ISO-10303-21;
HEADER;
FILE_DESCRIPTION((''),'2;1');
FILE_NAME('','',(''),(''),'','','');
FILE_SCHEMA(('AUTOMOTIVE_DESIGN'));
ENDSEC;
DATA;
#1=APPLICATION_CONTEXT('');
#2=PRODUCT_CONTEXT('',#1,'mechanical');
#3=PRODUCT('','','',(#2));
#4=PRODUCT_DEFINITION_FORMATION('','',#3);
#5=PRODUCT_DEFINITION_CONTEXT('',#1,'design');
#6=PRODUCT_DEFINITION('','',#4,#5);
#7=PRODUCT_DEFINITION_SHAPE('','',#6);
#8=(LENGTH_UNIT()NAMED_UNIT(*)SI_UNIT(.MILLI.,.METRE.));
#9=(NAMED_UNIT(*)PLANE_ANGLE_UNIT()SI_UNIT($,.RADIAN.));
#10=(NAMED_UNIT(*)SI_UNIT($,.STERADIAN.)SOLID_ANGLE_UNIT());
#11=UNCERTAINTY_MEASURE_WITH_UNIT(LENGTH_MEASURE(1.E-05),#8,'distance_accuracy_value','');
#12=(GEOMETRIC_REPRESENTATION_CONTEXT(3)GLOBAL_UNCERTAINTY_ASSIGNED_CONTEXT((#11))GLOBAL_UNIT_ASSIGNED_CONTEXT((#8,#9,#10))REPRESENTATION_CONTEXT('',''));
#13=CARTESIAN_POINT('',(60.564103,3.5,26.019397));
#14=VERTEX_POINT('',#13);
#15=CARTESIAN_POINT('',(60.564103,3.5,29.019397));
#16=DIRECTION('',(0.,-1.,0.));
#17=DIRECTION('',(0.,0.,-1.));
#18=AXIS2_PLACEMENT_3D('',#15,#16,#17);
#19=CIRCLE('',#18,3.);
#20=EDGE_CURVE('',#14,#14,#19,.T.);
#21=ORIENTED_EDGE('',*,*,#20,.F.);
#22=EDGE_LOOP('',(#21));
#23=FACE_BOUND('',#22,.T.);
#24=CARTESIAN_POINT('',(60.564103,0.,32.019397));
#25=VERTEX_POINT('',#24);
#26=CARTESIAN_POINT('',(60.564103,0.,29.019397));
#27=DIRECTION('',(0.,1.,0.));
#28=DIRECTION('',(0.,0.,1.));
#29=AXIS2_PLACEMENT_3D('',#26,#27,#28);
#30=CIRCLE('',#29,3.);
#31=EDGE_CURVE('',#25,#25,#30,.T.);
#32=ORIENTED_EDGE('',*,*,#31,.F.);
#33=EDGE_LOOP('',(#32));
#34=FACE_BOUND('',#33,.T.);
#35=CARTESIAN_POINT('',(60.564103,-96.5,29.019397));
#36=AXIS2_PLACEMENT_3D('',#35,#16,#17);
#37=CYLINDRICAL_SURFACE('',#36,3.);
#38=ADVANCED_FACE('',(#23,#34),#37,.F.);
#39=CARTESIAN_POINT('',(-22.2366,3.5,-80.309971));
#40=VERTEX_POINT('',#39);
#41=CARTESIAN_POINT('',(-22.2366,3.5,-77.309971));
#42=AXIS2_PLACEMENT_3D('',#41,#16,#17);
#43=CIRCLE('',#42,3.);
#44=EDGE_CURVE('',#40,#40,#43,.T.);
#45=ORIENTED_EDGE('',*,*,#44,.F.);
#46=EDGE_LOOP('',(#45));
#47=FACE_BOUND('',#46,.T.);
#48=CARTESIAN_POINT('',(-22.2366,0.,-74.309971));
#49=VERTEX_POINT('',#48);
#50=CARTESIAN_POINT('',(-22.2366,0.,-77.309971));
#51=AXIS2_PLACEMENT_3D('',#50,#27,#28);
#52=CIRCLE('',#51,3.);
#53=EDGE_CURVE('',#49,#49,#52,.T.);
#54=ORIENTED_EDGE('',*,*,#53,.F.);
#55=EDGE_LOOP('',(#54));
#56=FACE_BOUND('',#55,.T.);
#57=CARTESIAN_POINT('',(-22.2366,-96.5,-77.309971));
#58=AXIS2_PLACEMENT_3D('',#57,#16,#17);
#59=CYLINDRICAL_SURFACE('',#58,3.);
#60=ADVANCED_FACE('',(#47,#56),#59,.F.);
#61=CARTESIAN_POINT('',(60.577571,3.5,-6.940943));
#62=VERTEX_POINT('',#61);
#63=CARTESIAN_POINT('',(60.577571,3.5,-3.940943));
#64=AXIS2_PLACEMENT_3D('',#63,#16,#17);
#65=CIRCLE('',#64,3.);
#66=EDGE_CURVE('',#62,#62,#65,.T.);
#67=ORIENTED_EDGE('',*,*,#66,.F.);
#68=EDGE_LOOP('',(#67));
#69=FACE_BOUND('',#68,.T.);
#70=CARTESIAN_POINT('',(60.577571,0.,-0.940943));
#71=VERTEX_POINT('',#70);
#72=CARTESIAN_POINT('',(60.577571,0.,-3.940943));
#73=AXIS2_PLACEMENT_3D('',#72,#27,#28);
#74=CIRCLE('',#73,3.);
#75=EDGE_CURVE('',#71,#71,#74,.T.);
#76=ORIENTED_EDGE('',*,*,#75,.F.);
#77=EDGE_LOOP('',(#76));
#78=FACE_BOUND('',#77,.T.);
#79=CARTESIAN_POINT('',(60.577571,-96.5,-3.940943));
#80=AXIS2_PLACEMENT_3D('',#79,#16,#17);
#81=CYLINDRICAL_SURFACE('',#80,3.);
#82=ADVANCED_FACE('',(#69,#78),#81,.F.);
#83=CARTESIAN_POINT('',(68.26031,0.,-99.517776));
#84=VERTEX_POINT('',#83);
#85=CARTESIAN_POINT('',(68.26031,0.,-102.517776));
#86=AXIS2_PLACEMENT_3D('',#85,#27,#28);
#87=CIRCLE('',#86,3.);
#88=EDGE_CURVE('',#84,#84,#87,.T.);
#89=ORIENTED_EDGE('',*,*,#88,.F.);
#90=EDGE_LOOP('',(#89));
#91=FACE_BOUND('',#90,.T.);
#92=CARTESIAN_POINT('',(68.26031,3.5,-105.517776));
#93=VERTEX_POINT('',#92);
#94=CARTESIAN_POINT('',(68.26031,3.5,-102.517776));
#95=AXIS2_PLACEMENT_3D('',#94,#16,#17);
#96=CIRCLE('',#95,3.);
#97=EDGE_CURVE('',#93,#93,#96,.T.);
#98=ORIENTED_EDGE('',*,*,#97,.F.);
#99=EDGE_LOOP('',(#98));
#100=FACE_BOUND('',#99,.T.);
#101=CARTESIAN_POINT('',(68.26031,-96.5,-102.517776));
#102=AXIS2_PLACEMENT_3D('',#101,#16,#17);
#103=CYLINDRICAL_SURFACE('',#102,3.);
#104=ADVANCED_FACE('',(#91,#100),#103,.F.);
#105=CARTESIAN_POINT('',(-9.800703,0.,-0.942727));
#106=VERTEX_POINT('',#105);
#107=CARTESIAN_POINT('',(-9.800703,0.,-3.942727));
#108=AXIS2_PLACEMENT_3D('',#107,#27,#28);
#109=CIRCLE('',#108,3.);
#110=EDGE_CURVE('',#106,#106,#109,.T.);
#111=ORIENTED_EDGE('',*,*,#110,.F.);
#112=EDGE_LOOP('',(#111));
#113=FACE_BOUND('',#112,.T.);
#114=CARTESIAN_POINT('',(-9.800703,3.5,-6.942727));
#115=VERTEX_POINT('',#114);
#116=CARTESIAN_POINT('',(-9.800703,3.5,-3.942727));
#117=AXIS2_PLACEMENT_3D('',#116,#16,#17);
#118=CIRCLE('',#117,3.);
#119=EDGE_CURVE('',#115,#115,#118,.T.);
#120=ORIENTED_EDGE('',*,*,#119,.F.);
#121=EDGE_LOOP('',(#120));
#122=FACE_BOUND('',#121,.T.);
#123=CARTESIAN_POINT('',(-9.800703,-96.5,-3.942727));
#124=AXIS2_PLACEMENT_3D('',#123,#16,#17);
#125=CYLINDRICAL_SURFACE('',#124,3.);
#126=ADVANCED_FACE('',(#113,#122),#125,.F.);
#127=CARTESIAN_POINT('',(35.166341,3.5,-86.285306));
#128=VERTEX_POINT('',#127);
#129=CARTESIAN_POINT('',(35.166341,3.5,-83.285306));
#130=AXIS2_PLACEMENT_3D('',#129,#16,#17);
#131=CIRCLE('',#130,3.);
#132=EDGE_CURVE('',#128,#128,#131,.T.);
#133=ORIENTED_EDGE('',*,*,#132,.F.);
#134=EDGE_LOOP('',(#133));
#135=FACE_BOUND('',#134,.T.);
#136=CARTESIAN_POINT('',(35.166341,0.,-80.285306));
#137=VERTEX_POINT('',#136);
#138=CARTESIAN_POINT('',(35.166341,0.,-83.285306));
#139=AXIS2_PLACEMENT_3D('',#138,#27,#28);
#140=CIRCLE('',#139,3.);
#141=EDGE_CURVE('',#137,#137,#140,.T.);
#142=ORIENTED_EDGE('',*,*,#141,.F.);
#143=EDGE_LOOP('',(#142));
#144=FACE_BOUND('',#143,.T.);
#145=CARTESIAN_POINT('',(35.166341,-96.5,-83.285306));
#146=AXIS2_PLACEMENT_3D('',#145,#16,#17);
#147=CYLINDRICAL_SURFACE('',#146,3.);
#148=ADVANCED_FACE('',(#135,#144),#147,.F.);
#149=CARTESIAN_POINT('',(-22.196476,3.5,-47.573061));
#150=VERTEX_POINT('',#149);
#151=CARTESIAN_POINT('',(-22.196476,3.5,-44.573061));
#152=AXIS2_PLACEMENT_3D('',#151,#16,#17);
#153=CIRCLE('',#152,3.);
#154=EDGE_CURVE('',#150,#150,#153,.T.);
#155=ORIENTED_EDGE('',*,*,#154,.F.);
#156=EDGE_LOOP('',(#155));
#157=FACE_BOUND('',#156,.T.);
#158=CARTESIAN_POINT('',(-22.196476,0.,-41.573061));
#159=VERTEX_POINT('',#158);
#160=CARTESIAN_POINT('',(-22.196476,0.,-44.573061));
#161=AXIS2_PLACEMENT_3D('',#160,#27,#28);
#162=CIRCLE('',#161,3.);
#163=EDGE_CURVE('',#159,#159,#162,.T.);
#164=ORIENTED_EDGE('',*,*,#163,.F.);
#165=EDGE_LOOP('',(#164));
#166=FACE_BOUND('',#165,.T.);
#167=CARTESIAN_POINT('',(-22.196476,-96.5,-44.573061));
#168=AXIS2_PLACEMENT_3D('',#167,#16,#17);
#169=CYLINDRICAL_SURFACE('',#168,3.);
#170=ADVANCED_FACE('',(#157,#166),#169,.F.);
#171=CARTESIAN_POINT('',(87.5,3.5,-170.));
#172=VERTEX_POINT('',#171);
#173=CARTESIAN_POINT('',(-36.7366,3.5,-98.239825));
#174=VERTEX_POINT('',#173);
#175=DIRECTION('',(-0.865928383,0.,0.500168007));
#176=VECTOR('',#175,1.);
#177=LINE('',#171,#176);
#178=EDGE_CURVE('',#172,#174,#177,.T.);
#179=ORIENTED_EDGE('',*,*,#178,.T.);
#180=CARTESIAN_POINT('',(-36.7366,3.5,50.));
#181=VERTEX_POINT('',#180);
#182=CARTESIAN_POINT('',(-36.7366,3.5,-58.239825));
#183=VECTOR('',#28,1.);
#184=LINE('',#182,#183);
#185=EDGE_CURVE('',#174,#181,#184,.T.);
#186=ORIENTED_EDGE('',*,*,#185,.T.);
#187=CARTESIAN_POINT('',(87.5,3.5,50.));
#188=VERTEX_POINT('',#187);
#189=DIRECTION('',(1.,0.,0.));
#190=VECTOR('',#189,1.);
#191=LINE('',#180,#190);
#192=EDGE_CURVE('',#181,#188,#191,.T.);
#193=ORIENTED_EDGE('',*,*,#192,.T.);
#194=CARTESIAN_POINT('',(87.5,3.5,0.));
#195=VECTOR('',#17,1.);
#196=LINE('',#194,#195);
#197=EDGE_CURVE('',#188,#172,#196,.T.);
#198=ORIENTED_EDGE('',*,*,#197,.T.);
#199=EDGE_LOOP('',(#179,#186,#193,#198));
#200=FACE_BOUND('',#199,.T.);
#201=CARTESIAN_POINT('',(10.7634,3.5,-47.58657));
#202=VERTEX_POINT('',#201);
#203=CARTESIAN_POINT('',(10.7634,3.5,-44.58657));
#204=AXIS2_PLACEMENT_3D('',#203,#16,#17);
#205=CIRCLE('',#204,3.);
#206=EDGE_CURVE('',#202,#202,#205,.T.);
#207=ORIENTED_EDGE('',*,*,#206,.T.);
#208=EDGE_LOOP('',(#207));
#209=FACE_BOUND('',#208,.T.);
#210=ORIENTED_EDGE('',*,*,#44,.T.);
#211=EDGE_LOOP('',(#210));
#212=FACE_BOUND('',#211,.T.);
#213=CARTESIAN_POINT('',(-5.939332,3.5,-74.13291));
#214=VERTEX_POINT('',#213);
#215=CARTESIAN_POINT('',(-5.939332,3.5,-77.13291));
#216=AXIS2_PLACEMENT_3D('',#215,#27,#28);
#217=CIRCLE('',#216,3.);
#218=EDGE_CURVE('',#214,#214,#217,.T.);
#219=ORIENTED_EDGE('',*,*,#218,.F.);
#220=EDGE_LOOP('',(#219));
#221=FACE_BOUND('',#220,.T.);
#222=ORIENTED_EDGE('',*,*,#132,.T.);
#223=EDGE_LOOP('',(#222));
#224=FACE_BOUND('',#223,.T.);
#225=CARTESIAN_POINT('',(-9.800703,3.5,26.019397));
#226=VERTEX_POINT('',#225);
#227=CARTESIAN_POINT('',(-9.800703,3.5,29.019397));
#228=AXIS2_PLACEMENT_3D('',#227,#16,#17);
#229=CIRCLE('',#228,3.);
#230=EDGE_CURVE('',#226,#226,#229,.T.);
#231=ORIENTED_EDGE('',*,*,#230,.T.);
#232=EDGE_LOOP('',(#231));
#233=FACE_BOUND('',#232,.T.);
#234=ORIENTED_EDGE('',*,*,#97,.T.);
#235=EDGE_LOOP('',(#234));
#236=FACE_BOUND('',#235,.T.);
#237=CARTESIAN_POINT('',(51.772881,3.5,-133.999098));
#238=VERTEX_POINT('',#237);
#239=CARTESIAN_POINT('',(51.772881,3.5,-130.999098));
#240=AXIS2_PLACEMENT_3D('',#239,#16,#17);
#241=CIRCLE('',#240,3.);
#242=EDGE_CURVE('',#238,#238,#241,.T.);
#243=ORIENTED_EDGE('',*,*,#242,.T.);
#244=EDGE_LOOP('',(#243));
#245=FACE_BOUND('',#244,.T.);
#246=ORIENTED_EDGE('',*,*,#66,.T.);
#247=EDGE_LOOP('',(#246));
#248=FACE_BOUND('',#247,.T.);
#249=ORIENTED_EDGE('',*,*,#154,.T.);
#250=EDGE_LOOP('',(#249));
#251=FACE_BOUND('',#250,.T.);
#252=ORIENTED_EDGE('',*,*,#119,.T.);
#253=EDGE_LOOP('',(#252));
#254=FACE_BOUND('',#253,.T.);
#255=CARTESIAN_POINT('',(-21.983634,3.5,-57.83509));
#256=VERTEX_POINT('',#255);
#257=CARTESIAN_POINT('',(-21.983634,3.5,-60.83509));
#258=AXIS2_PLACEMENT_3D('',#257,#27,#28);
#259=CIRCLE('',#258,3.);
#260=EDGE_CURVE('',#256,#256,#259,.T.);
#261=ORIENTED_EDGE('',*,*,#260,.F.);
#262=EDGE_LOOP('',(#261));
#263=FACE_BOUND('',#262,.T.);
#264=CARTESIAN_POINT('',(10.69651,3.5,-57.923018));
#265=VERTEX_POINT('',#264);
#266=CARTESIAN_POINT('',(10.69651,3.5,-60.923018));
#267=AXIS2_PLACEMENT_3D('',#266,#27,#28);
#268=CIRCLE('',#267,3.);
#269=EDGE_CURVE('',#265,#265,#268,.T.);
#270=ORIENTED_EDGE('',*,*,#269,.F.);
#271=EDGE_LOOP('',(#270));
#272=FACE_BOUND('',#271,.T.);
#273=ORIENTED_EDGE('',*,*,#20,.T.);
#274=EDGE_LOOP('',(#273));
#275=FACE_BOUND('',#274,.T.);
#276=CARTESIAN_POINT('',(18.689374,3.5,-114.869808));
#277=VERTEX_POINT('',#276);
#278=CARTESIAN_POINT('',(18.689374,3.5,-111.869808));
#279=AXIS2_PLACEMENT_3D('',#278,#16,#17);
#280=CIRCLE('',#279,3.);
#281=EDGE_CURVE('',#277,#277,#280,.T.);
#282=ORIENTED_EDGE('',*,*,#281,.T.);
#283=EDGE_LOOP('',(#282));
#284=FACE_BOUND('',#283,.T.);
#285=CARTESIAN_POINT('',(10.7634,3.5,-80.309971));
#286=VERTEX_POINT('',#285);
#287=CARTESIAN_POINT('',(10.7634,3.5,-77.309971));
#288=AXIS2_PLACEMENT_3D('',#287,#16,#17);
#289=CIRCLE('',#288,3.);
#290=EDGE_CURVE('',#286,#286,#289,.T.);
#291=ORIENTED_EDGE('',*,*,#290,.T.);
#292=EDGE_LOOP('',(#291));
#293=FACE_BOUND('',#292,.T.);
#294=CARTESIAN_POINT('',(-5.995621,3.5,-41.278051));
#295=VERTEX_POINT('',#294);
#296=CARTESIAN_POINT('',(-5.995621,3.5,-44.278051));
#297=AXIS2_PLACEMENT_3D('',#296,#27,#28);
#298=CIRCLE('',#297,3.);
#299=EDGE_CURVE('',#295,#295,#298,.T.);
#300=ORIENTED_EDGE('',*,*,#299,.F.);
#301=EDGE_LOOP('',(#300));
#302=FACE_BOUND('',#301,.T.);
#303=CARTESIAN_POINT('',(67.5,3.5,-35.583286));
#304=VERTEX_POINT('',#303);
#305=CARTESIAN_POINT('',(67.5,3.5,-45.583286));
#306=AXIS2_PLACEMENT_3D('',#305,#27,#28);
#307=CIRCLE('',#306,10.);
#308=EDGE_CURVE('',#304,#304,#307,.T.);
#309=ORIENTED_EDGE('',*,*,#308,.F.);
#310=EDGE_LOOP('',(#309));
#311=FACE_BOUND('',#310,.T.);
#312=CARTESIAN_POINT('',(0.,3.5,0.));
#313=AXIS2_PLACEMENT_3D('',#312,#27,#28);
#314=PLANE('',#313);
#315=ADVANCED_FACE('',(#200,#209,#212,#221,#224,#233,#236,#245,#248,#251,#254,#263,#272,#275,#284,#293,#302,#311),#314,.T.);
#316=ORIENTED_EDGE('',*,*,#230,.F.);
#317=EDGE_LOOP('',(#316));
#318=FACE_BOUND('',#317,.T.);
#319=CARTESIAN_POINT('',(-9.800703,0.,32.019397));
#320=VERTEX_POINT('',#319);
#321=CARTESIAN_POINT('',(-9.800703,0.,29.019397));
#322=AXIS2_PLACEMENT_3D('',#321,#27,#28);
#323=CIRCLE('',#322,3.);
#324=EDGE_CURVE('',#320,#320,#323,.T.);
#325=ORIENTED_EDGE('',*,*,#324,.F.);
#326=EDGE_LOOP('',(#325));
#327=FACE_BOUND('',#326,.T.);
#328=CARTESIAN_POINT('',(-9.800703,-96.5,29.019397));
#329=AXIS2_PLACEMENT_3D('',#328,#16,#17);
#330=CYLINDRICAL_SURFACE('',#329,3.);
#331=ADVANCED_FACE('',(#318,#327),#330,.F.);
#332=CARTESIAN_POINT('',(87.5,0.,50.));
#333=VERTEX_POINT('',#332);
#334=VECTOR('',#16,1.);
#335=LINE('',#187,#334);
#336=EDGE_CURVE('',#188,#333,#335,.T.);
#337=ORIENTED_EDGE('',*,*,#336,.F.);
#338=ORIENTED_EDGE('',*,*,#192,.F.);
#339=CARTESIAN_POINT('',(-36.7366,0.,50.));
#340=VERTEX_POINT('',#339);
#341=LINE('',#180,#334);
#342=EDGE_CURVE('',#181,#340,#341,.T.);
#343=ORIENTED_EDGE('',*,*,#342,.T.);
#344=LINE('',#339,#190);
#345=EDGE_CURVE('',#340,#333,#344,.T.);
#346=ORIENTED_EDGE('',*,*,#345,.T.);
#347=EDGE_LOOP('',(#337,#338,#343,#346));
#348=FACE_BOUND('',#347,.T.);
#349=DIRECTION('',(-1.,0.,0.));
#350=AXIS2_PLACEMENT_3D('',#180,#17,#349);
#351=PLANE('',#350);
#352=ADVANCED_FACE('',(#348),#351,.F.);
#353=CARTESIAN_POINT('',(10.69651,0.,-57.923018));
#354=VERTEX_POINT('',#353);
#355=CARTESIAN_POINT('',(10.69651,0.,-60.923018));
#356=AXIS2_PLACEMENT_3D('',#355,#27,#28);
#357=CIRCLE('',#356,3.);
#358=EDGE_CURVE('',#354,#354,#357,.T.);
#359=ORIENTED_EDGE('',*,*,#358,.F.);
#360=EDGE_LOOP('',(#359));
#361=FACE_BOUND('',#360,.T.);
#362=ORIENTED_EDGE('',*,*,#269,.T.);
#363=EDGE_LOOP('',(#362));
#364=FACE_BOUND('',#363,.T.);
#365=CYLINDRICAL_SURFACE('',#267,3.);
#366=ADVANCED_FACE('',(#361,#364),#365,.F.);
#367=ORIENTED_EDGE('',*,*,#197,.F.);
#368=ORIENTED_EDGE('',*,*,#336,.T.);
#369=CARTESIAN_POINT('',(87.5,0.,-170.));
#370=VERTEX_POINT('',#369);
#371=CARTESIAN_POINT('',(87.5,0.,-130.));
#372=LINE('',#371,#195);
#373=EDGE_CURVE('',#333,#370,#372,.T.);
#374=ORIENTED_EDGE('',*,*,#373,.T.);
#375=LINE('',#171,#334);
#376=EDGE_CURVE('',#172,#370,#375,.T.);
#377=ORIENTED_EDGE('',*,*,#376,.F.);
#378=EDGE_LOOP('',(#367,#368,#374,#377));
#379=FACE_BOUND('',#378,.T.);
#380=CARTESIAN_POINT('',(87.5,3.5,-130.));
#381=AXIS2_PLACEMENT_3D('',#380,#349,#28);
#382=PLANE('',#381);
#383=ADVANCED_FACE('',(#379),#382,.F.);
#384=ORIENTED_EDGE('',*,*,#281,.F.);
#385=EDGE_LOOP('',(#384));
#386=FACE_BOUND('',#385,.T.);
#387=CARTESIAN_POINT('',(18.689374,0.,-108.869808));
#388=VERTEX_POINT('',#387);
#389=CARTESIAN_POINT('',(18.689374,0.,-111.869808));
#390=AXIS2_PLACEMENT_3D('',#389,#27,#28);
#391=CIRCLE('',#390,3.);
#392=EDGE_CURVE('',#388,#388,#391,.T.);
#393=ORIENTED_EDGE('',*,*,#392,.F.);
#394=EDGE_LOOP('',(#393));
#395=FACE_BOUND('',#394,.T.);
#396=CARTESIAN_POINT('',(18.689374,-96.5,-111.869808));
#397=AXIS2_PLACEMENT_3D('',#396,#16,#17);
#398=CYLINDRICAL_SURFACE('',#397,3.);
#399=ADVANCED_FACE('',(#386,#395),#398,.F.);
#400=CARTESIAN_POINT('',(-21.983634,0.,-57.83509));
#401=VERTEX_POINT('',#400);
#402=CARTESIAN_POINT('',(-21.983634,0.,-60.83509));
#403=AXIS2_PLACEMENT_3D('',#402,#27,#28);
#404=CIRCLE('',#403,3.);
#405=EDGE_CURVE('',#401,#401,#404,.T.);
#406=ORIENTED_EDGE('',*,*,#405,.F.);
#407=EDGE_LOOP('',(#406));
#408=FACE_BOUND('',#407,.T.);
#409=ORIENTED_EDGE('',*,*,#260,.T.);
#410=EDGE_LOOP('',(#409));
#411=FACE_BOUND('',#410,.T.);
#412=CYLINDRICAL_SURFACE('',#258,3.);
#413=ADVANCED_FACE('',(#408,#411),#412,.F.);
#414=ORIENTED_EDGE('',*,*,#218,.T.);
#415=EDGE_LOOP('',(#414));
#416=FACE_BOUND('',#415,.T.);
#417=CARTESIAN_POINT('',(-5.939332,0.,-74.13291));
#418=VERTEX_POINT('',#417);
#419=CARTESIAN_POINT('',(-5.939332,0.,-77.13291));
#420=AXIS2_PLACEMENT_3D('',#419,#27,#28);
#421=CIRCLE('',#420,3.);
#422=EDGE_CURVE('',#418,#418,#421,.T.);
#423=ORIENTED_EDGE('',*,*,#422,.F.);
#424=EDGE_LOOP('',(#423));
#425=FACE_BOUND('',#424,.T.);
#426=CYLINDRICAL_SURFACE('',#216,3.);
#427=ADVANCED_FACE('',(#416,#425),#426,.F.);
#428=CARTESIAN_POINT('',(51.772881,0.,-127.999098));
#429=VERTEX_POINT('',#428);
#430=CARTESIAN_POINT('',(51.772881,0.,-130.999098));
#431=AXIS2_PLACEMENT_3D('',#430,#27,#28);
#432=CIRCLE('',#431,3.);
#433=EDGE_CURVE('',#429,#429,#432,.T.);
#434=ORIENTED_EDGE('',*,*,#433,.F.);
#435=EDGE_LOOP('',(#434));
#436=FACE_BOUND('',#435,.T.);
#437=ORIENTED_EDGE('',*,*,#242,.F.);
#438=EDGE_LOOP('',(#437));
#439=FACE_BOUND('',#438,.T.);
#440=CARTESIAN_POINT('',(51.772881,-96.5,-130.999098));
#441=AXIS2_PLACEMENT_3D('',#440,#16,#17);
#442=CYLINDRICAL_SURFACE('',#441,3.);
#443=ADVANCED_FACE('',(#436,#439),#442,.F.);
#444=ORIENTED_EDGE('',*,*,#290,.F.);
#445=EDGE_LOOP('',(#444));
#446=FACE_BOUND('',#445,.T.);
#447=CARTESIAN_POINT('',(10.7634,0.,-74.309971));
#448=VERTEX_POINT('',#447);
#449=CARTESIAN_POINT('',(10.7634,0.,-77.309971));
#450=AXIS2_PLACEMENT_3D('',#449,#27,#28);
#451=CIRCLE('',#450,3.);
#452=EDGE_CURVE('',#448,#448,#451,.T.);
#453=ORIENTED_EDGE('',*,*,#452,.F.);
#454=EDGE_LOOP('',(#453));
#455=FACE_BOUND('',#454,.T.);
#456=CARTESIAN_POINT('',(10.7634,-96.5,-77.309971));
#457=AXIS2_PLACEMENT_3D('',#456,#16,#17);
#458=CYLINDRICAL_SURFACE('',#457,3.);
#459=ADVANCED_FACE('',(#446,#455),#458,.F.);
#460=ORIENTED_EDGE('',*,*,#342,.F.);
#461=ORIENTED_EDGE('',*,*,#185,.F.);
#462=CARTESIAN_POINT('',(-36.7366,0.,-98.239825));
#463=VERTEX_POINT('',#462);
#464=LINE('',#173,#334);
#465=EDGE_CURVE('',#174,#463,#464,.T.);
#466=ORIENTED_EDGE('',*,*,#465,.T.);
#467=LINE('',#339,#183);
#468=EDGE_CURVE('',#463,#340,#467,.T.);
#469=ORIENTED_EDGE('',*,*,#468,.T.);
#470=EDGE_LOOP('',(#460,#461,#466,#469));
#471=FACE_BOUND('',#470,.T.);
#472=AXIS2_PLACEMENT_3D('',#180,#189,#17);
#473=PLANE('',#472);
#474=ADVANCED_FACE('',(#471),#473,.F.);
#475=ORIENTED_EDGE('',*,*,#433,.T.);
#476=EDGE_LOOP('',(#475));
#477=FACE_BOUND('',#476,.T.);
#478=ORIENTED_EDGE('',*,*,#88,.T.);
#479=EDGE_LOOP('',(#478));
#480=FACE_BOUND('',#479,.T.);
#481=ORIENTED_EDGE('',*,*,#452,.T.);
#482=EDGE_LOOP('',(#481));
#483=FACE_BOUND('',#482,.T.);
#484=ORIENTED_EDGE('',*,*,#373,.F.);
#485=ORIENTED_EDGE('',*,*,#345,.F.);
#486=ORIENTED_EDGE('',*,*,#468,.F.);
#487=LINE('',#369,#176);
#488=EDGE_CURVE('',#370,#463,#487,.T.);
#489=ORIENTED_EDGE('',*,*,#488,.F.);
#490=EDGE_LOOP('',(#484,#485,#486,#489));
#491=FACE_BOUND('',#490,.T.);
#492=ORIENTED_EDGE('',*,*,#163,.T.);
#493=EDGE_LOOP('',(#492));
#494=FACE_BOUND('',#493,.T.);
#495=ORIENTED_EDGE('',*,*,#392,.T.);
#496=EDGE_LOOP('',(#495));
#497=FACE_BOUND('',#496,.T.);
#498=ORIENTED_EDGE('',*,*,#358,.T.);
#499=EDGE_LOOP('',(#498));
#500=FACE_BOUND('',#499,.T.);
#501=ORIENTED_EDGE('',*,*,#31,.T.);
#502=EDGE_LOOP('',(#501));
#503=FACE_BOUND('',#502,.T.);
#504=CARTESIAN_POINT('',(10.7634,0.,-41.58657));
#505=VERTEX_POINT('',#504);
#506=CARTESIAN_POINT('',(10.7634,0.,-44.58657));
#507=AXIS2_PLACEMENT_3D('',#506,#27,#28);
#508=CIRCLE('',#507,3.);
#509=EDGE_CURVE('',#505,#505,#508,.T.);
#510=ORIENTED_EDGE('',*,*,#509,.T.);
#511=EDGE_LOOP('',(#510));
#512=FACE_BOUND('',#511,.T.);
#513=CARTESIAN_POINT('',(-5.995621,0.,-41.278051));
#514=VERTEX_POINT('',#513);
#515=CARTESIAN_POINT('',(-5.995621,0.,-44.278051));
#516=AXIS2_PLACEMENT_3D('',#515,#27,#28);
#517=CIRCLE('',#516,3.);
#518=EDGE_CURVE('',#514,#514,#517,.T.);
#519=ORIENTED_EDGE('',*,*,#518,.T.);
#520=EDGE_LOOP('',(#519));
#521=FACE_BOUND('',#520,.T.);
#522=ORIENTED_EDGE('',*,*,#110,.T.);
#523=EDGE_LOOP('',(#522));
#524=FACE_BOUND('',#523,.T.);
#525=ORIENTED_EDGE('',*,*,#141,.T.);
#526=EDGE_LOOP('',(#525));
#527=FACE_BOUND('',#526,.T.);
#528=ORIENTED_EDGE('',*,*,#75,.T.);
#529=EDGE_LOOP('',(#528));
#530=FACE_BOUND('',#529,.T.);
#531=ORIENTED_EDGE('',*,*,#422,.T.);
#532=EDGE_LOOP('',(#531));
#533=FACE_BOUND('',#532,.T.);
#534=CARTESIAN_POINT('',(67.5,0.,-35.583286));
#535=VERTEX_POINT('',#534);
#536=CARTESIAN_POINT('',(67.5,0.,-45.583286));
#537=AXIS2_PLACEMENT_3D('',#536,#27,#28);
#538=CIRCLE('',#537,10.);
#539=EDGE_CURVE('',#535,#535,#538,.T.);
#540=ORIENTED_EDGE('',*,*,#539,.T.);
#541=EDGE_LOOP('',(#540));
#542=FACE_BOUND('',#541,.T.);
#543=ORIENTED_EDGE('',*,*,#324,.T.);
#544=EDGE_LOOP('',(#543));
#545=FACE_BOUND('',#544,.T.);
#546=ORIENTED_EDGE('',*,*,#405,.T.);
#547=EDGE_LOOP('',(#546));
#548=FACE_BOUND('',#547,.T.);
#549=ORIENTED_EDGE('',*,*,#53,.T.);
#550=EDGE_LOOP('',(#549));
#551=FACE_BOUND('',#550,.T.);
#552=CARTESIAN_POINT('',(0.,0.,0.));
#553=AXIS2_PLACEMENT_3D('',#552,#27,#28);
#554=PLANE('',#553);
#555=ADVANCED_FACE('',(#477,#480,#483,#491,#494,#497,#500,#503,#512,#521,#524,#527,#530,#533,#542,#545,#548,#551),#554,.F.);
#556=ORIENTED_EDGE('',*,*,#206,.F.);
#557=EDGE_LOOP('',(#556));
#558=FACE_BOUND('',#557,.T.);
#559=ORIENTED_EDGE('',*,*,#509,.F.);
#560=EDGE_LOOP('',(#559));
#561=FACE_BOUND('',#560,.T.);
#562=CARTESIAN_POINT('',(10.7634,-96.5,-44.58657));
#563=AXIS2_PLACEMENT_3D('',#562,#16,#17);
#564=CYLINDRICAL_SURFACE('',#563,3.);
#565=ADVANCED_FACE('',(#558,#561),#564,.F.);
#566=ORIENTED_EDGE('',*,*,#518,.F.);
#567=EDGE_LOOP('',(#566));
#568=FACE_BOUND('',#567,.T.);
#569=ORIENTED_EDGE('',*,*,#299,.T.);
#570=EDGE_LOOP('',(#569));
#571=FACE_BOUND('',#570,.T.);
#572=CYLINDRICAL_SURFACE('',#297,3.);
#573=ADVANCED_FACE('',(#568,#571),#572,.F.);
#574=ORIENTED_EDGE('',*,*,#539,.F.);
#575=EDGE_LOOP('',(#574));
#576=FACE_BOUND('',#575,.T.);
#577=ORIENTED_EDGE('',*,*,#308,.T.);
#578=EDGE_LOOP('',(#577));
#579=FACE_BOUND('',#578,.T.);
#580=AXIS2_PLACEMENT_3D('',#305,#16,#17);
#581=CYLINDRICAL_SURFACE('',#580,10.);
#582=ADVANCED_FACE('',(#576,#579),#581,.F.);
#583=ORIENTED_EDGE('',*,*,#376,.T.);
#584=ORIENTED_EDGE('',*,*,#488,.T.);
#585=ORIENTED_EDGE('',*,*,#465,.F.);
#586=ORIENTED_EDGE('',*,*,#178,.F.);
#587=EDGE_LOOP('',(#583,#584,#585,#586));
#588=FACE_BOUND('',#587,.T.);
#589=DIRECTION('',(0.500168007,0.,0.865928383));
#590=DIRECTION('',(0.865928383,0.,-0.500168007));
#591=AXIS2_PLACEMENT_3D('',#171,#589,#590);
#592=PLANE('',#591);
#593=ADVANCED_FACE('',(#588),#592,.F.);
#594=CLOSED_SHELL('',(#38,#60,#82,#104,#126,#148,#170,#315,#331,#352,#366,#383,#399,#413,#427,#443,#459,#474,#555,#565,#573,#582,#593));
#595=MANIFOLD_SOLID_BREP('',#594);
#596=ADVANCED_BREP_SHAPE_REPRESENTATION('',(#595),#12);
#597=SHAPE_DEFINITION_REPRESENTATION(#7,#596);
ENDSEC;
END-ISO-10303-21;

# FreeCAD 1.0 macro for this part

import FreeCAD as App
import Part
import Sketcher
from FreeCAD import Vector
Q = App.Units.Quantity


def add_polygon(sketch, points):
    """Adds a closed chain of lines whose ends are joined by coincident constraints."""
    first, n = sketch.GeometryCount, len(points)
    for a, b in zip(points, points[1:] + points[:1]):
        sketch.addGeometry(Part.LineSegment(App.Vector(*a, 0), App.Vector(*b, 0)), False)
    for i in range(n):
        sketch.addConstraint(Sketcher.Constraint("Coincident", first + i, 2, first + (i + 1) % n, 1))

doc = App.newDocument("Part")
body = doc.addObject("PartDesign::Body", "Body")

# Sketch on XZ plane
sketch1 = doc.addObject("Sketcher::SketchObject", "Sketch")
body.addObject(sketch1)
sketch1.AttachmentSupport = (doc.XZ_Plane, [""])
sketch1.MapMode = "FlatFace"
add_polygon(sketch1, [(-37, 50), (88, 50), (88, -170), (-37, -98)])  # lines 0-3
sketch1.addGeometry(Part.Circle(Vector(68, -46, 0), Vector(0, 0, 1), 10), False)  # 4
sketch1.addConstraint([
    Sketcher.Constraint("Horizontal", 0),
    Sketcher.Constraint("Vertical", 1),
    Sketcher.Constraint("Vertical", 3),
    Sketcher.Constraint("Diameter", 4, Q("20 mm")),
    Sketcher.Constraint("DistanceY", 1, 2, 1, 1, Q("220 mm")),
    Sketcher.Constraint("DistanceY", -1, 1, 0, 2, Q("50 mm")),
    Sketcher.Constraint("DistanceX", 4, 3, 0, 2, Q("20 mm")),
    Sketcher.Constraint("DistanceX", -1, 1, 4, 3, Q("67.5 mm")),
    Sketcher.Constraint("DistanceX", 0, 1, 0, 2, Q("124.2366 mm")),
    Sketcher.Constraint("DistanceY", 3, 1, 3, 2, Q("148.239825 mm")),
    Sketcher.Constraint("DistanceY", 2, 2, 4, 3, Q("52.656539 mm")),
])
pad1 = doc.addObject("PartDesign::Pad", "Pad")
body.addObject(pad1)
pad1.Profile = sketch1
pad1.Length = 3.5
pad1.Reversed = True

# Sketch on XZ plane
sketch2 = doc.addObject("Sketcher::SketchObject", "Sketch001")
body.addObject(sketch2)
sketch2.AttachmentSupport = (doc.XZ_Plane, [""])
sketch2.MapMode = "FlatFace"
sketch2.AttachmentOffset = App.Placement(Vector(0, 0, 96.5), App.Rotation())
sketch2.addGeometry(Part.Circle(Vector(60.6, 29, 0), Vector(0, 0, 1), 3), False)
sketch2.addConstraint([
    Sketcher.Constraint("Diameter", 0, Q("6 mm")),
    Sketcher.Constraint("DistanceX", -1, 1, 0, 3, Q("60.564103 mm")),
    Sketcher.Constraint("DistanceY", -1, 1, 0, 3, Q("29.019397 mm")),
])
doc.recompute()
hole = doc.addObject("PartDesign::Hole", "Hole")
body.addObject(hole)
hole.Profile = sketch2
hole.ThreadType = "None"
hole.Diameter = 6
hole.DepthType = "ThroughAll"

# Sketch on XZ plane
sketch3 = doc.addObject("Sketcher::SketchObject", "Sketch002")
body.addObject(sketch3)
sketch3.AttachmentSupport = (doc.XZ_Plane, [""])
sketch3.MapMode = "FlatFace"
sketch3.addGeometry(Part.Circle(Vector(60.6, 29, 0), Vector(0, 0, 1), 3), False)
sketch3.addConstraint([
    Sketcher.Constraint("Diameter", 0, Q("6 mm")),
    Sketcher.Constraint("DistanceX", -1, 1, 0, 3, Q("60.564103 mm")),
    Sketcher.Constraint("DistanceY", -1, 1, 0, 3, Q("29.019397 mm")),
])
doc.recompute()
hole2 = doc.addObject("PartDesign::Hole", "Hole001")
body.addObject(hole2)
hole2.Profile = sketch3
hole2.ThreadType = "None"
hole2.Diameter = 6
hole2.DepthType = "ThroughAll"

# Sketch on XZ plane
sketch4 = doc.addObject("Sketcher::SketchObject", "Sketch003")
body.addObject(sketch4)
sketch4.AttachmentSupport = (doc.XZ_Plane, [""])
sketch4.MapMode = "FlatFace"
sketch4.AttachmentOffset = App.Placement(Vector(0, 0, 96.5), App.Rotation())
sketch4.addGeometry(Part.Circle(Vector(60.6, -3.9, 0), Vector(0, 0, 1), 3), False)
sketch4.addConstraint([
    Sketcher.Constraint("Diameter", 0, Q("6 mm")),
    Sketcher.Constraint("DistanceX", -1, 1, 0, 3, Q("60.577571 mm")),
    Sketcher.Constraint("DistanceY", 0, 3, -1, 1, Q("3.940943 mm")),
])
doc.recompute()
hole3 = doc.addObject("PartDesign::Hole", "Hole002")
body.addObject(hole3)
hole3.Profile = sketch4
hole3.ThreadType = "None"
hole3.Diameter = 6
hole3.DepthType = "ThroughAll"

# Sketch on XZ plane
sketch5 = doc.addObject("Sketcher::SketchObject", "Sketch004")
body.addObject(sketch5)
sketch5.AttachmentSupport = (doc.XZ_Plane, [""])
sketch5.MapMode = "FlatFace"
sketch5.addGeometry(Part.Circle(Vector(60.6, -3.9, 0), Vector(0, 0, 1), 3), False)
sketch5.addConstraint([
    Sketcher.Constraint("Diameter", 0, Q("6 mm")),
    Sketcher.Constraint("DistanceX", -1, 1, 0, 3, Q("60.577571 mm")),
    Sketcher.Constraint("DistanceY", 0, 3, -1, 1, Q("3.940943 mm")),
])
doc.recompute()
hole4 = doc.addObject("PartDesign::Hole", "Hole003")
body.addObject(hole4)
hole4.Profile = sketch5
hole4.ThreadType = "None"
hole4.Diameter = 6
hole4.DepthType = "ThroughAll"

# Sketch on XZ plane
sketch6 = doc.addObject("Sketcher::SketchObject", "Sketch005")
body.addObject(sketch6)
sketch6.AttachmentSupport = (doc.XZ_Plane, [""])
sketch6.MapMode = "FlatFace"
sketch6.AttachmentOffset = App.Placement(Vector(0, 0, 96.5), App.Rotation())
sketch6.addGeometry(Part.Circle(Vector(-9.8, -3.9, 0), Vector(0, 0, 1), 3), False)
sketch6.addConstraint([
    Sketcher.Constraint("Diameter", 0, Q("6 mm")),
    Sketcher.Constraint("DistanceX", 0, 3, -1, 1, Q("9.800703 mm")),
    Sketcher.Constraint("DistanceY", 0, 3, -1, 1, Q("3.942727 mm")),
])
doc.recompute()
hole5 = doc.addObject("PartDesign::Hole", "Hole004")
body.addObject(hole5)
hole5.Profile = sketch6
hole5.ThreadType = "None"
hole5.Diameter = 6
hole5.DepthType = "ThroughAll"

# Sketch on XZ plane
sketch7 = doc.addObject("Sketcher::SketchObject", "Sketch006")
body.addObject(sketch7)
sketch7.AttachmentSupport = (doc.XZ_Plane, [""])
sketch7.MapMode = "FlatFace"
sketch7.addGeometry(Part.Circle(Vector(-9.8, -3.9, 0), Vector(0, 0, 1), 3), False)
sketch7.addConstraint([
    Sketcher.Constraint("Diameter", 0, Q("6 mm")),
    Sketcher.Constraint("DistanceX", 0, 3, -1, 1, Q("9.800703 mm")),
    Sketcher.Constraint("DistanceY", 0, 3, -1, 1, Q("3.942727 mm")),
])
doc.recompute()
hole6 = doc.addObject("PartDesign::Hole", "Hole005")
body.addObject(hole6)
hole6.Profile = sketch7
hole6.ThreadType = "None"
hole6.Diameter = 6
hole6.DepthType = "ThroughAll"

# Sketch on XZ plane
sketch8 = doc.addObject("Sketcher::SketchObject", "Sketch007")
body.addObject(sketch8)
sketch8.AttachmentSupport = (doc.XZ_Plane, [""])
sketch8.MapMode = "FlatFace"
sketch8.AttachmentOffset = App.Placement(Vector(0, 0, 96.5), App.Rotation())
sketch8.addGeometry(Part.Circle(Vector(-22.2, -77.3, 0), Vector(0, 0, 1), 3), False)
sketch8.addConstraint([
    Sketcher.Constraint("Diameter", 0, Q("6 mm")),
    Sketcher.Constraint("DistanceX", 0, 3, -1, 1, Q("22.2366 mm")),
    Sketcher.Constraint("DistanceY", 0, 3, -1, 1, Q("77.309971 mm")),
])
doc.recompute()
hole7 = doc.addObject("PartDesign::Hole", "Hole006")
body.addObject(hole7)
hole7.Profile = sketch8
hole7.ThreadType = "None"
hole7.Diameter = 6
hole7.DepthType = "ThroughAll"

# Sketch on XZ plane
sketch9 = doc.addObject("Sketcher::SketchObject", "Sketch008")
body.addObject(sketch9)
sketch9.AttachmentSupport = (doc.XZ_Plane, [""])
sketch9.MapMode = "FlatFace"
sketch9.addGeometry(Part.Circle(Vector(-22.2, -77.3, 0), Vector(0, 0, 1), 3), False)
sketch9.addConstraint([
    Sketcher.Constraint("Diameter", 0, Q("6 mm")),
    Sketcher.Constraint("DistanceX", 0, 3, -1, 1, Q("22.2366 mm")),
    Sketcher.Constraint("DistanceY", 0, 3, -1, 1, Q("77.309971 mm")),
])
doc.recompute()
hole8 = doc.addObject("PartDesign::Hole", "Hole007")
body.addObject(hole8)
hole8.Profile = sketch9
hole8.ThreadType = "None"
hole8.Diameter = 6
hole8.DepthType = "ThroughAll"

# Sketch on XZ plane
sketch10 = doc.addObject("Sketcher::SketchObject", "Sketch009")
body.addObject(sketch10)
sketch10.AttachmentSupport = (doc.XZ_Plane, [""])
sketch10.MapMode = "FlatFace"
sketch10.AttachmentOffset = App.Placement(Vector(0, 0, 96.5), App.Rotation())
sketch10.addGeometry(Part.Circle(Vector(10.8, -77.3, 0), Vector(0, 0, 1), 3), False)
sketch10.addConstraint([
    Sketcher.Constraint("Diameter", 0, Q("6 mm")),
    Sketcher.Constraint("DistanceX", -1, 1, 0, 3, Q("10.7634 mm")),
    Sketcher.Constraint("DistanceY", 0, 3, -1, 1, Q("77.309971 mm")),
])
doc.recompute()
hole9 = doc.addObject("PartDesign::Hole", "Hole008")
body.addObject(hole9)
hole9.Profile = sketch10
hole9.ThreadType = "None"
hole9.Diameter = 6
hole9.DepthType = "ThroughAll"

# Sketch on XZ plane
sketch11 = doc.addObject("Sketcher::SketchObject", "Sketch010")
body.addObject(sketch11)
sketch11.AttachmentSupport = (doc.XZ_Plane, [""])
sketch11.MapMode = "FlatFace"
sketch11.addGeometry(Part.Circle(Vector(10.8, -77.3, 0), Vector(0, 0, 1), 3), False)
sketch11.addConstraint([
    Sketcher.Constraint("Diameter", 0, Q("6 mm")),
    Sketcher.Constraint("DistanceX", -1, 1, 0, 3, Q("10.7634 mm")),
    Sketcher.Constraint("DistanceY", 0, 3, -1, 1, Q("77.309971 mm")),
])
doc.recompute()
hole10 = doc.addObject("PartDesign::Hole", "Hole009")
body.addObject(hole10)
hole10.Profile = sketch11
hole10.ThreadType = "None"
hole10.Diameter = 6
hole10.DepthType = "ThroughAll"

# Sketch on XZ plane
sketch12 = doc.addObject("Sketcher::SketchObject", "Sketch011")
body.addObject(sketch12)
sketch12.AttachmentSupport = (doc.XZ_Plane, [""])
sketch12.MapMode = "FlatFace"
sketch12.AttachmentOffset = App.Placement(Vector(0, 0, 96.5), App.Rotation())
sketch12.addGeometry(Part.Circle(Vector(10.8, -44.6, 0), Vector(0, 0, 1), 3), False)
sketch12.addConstraint([
    Sketcher.Constraint("Diameter", 0, Q("6 mm")),
    Sketcher.Constraint("DistanceX", -1, 1, 0, 3, Q("10.7634 mm")),
    Sketcher.Constraint("DistanceY", 0, 3, -1, 1, Q("44.58657 mm")),
])
doc.recompute()
hole11 = doc.addObject("PartDesign::Hole", "Hole010")
body.addObject(hole11)
hole11.Profile = sketch12
hole11.ThreadType = "None"
hole11.Diameter = 6
hole11.DepthType = "ThroughAll"

# Sketch on XZ plane
sketch13 = doc.addObject("Sketcher::SketchObject", "Sketch012")
body.addObject(sketch13)
sketch13.AttachmentSupport = (doc.XZ_Plane, [""])
sketch13.MapMode = "FlatFace"
sketch13.addGeometry(Part.Circle(Vector(10.8, -44.6, 0), Vector(0, 0, 1), 3), False)
sketch13.addConstraint([
    Sketcher.Constraint("Diameter", 0, Q("6 mm")),
    Sketcher.Constraint("DistanceX", -1, 1, 0, 3, Q("10.7634 mm")),
    Sketcher.Constraint("DistanceY", 0, 3, -1, 1, Q("44.58657 mm")),
])
doc.recompute()
hole12 = doc.addObject("PartDesign::Hole", "Hole011")
body.addObject(hole12)
hole12.Profile = sketch13
hole12.ThreadType = "None"
hole12.Diameter = 6
hole12.DepthType = "ThroughAll"

# Sketch on XZ plane
sketch14 = doc.addObject("Sketcher::SketchObject", "Sketch013")
body.addObject(sketch14)
sketch14.AttachmentSupport = (doc.XZ_Plane, [""])
sketch14.MapMode = "FlatFace"
sketch14.AttachmentOffset = App.Placement(Vector(0, 0, 96.5), App.Rotation())
sketch14.addGeometry(Part.Circle(Vector(-22.2, -44.6, 0), Vector(0, 0, 1), 3), False)
sketch14.addConstraint([
    Sketcher.Constraint("Diameter", 0, Q("6 mm")),
    Sketcher.Constraint("DistanceY", 0, 3, -1, 1, Q("44.573061 mm")),
    Sketcher.Constraint("DistanceX", 0, 3, -1, 1, Q("22.196476 mm")),
])
doc.recompute()
hole13 = doc.addObject("PartDesign::Hole", "Hole012")
body.addObject(hole13)
hole13.Profile = sketch14
hole13.ThreadType = "None"
hole13.Diameter = 6
hole13.DepthType = "ThroughAll"

# Sketch on XZ plane
sketch15 = doc.addObject("Sketcher::SketchObject", "Sketch014")
body.addObject(sketch15)
sketch15.AttachmentSupport = (doc.XZ_Plane, [""])
sketch15.MapMode = "FlatFace"
sketch15.addGeometry(Part.Circle(Vector(-22.2, -44.6, 0), Vector(0, 0, 1), 3), False)
sketch15.addConstraint([
    Sketcher.Constraint("Diameter", 0, Q("6 mm")),
    Sketcher.Constraint("DistanceY", 0, 3, -1, 1, Q("44.573061 mm")),
    Sketcher.Constraint("DistanceX", 0, 3, -1, 1, Q("22.196476 mm")),
])
doc.recompute()
hole14 = doc.addObject("PartDesign::Hole", "Hole013")
body.addObject(hole14)
hole14.Profile = sketch15
hole14.ThreadType = "None"
hole14.Diameter = 6
hole14.DepthType = "ThroughAll"

# Sketch on XZ plane
sketch16 = doc.addObject("Sketcher::SketchObject", "Sketch015")
body.addObject(sketch16)
sketch16.AttachmentSupport = (doc.XZ_Plane, [""])
sketch16.MapMode = "FlatFace"
sketch16.AttachmentOffset = App.Placement(Vector(0, 0, -3.5), App.Rotation())
sketch16.addGeometry(Part.Circle(Vector(-22, -60.8, 0), Vector(0, 0, 1), 3), False)
sketch16.addConstraint([
    Sketcher.Constraint("Diameter", 0, Q("6 mm")),
    Sketcher.Constraint("DistanceY", 0, 3, -1, 1, Q("60.83509 mm")),
    Sketcher.Constraint("DistanceX", 0, 3, -1, 1, Q("21.983634 mm")),
])
doc.recompute()
hole15 = doc.addObject("PartDesign::Hole", "Hole014")
body.addObject(hole15)
hole15.Profile = sketch16
hole15.ThreadType = "None"
hole15.Diameter = 6
hole15.DepthType = "Dimension"
hole15.Depth = 30.64
hole15.DrillPoint = "Angled"
hole15.DrillPointAngle = 118
hole15.Reversed = True

# Sketch on XZ plane
sketch17 = doc.addObject("Sketcher::SketchObject", "Sketch016")
body.addObject(sketch17)
sketch17.AttachmentSupport = (doc.XZ_Plane, [""])
sketch17.MapMode = "FlatFace"
sketch17.AttachmentOffset = App.Placement(Vector(0, 0, -3.5), App.Rotation())
sketch17.addGeometry(Part.Circle(Vector(10.7, -60.9, 0), Vector(0, 0, 1), 3), False)
sketch17.addConstraint([
    Sketcher.Constraint("Diameter", 0, Q("6 mm")),
    Sketcher.Constraint("DistanceX", -1, 1, 0, 3, Q("10.69651 mm")),
    Sketcher.Constraint("DistanceY", 0, 3, -1, 1, Q("60.923018 mm")),
])
doc.recompute()
hole16 = doc.addObject("PartDesign::Hole", "Hole015")
body.addObject(hole16)
hole16.Profile = sketch17
hole16.ThreadType = "None"
hole16.Diameter = 6
hole16.DepthType = "Dimension"
hole16.Depth = 30.64
hole16.DrillPoint = "Angled"
hole16.DrillPointAngle = 118
hole16.Reversed = True

# Sketch on XZ plane
sketch18 = doc.addObject("Sketcher::SketchObject", "Sketch017")
body.addObject(sketch18)
sketch18.AttachmentSupport = (doc.XZ_Plane, [""])
sketch18.MapMode = "FlatFace"
sketch18.AttachmentOffset = App.Placement(Vector(0, 0, -3.5), App.Rotation())
sketch18.addGeometry(Part.Circle(Vector(-6, -44.3, 0), Vector(0, 0, 1), 3), False)
sketch18.addConstraint([
    Sketcher.Constraint("Diameter", 0, Q("6 mm")),
    Sketcher.Constraint("DistanceX", 0, 3, -1, 1, Q("5.995621 mm")),
    Sketcher.Constraint("DistanceY", 0, 3, -1, 1, Q("44.278051 mm")),
])
doc.recompute()
hole17 = doc.addObject("PartDesign::Hole", "Hole016")
body.addObject(hole17)
hole17.Profile = sketch18
hole17.ThreadType = "None"
hole17.Diameter = 6
hole17.DepthType = "Dimension"
hole17.Depth = 30.64
hole17.DrillPoint = "Angled"
hole17.DrillPointAngle = 118
hole17.Reversed = True

# Sketch on XZ plane
sketch19 = doc.addObject("Sketcher::SketchObject", "Sketch018")
body.addObject(sketch19)
sketch19.AttachmentSupport = (doc.XZ_Plane, [""])
sketch19.MapMode = "FlatFace"
sketch19.AttachmentOffset = App.Placement(Vector(0, 0, -3.5), App.Rotation())
sketch19.addGeometry(Part.Circle(Vector(-5.9, -77.1, 0), Vector(0, 0, 1), 3), False)
sketch19.addConstraint([
    Sketcher.Constraint("Diameter", 0, Q("6 mm")),
    Sketcher.Constraint("DistanceY", 0, 3, -1, 1, Q("77.13291 mm")),
    Sketcher.Constraint("DistanceX", 0, 3, -1, 1, Q("5.939332 mm")),
])
doc.recompute()
hole18 = doc.addObject("PartDesign::Hole", "Hole017")
body.addObject(hole18)
hole18.Profile = sketch19
hole18.ThreadType = "None"
hole18.Diameter = 6
hole18.DepthType = "Dimension"
hole18.Depth = 30.64
hole18.DrillPoint = "Angled"
hole18.DrillPointAngle = 118
hole18.Reversed = True

# Sketch on XZ plane
sketch20 = doc.addObject("Sketcher::SketchObject", "Sketch019")
body.addObject(sketch20)
sketch20.AttachmentSupport = (doc.XZ_Plane, [""])
sketch20.MapMode = "FlatFace"
sketch20.AttachmentOffset = App.Placement(Vector(0, 0, 96.5), App.Rotation())
sketch20.addGeometry(Part.Circle(Vector(68.3, -102.5, 0), Vector(0, 0, 1), 3), False)
sketch20.addConstraint([
    Sketcher.Constraint("Diameter", 0, Q("6 mm")),
    Sketcher.Constraint("DistanceX", -1, 1, 0, 3, Q("68.26031 mm")),
    Sketcher.Constraint("DistanceY", 0, 3, -1, 1, Q("102.517776 mm")),
])
doc.recompute()
hole19 = doc.addObject("PartDesign::Hole", "Hole018")
body.addObject(hole19)
hole19.Profile = sketch20
hole19.ThreadType = "None"
hole19.Diameter = 6
hole19.DepthType = "ThroughAll"

# Sketch on XZ plane
sketch21 = doc.addObject("Sketcher::SketchObject", "Sketch020")
body.addObject(sketch21)
sketch21.AttachmentSupport = (doc.XZ_Plane, [""])
sketch21.MapMode = "FlatFace"
sketch21.addGeometry(Part.Circle(Vector(68.3, -102.5, 0), Vector(0, 0, 1), 3), False)
sketch21.addConstraint([
    Sketcher.Constraint("Diameter", 0, Q("6 mm")),
    Sketcher.Constraint("DistanceX", -1, 1, 0, 3, Q("68.26031 mm")),
    Sketcher.Constraint("DistanceY", 0, 3, -1, 1, Q("102.517776 mm")),
])
doc.recompute()
hole20 = doc.addObject("PartDesign::Hole", "Hole019")
body.addObject(hole20)
hole20.Profile = sketch21
hole20.ThreadType = "None"
hole20.Diameter = 6
hole20.DepthType = "ThroughAll"

# Sketch on XZ plane
sketch22 = doc.addObject("Sketcher::SketchObject", "Sketch021")
body.addObject(sketch22)
sketch22.AttachmentSupport = (doc.XZ_Plane, [""])
sketch22.MapMode = "FlatFace"
sketch22.AttachmentOffset = App.Placement(Vector(0, 0, 96.5), App.Rotation())
sketch22.addGeometry(Part.Circle(Vector(51.8, -131, 0), Vector(0, 0, 1), 3), False)
sketch22.addConstraint([
    Sketcher.Constraint("Diameter", 0, Q("6 mm")),
    Sketcher.Constraint("DistanceY", 0, 3, -1, 1, Q("130.999098 mm")),
    Sketcher.Constraint("DistanceX", -1, 1, 0, 3, Q("51.772881 mm")),
])
doc.recompute()
hole21 = doc.addObject("PartDesign::Hole", "Hole020")
body.addObject(hole21)
hole21.Profile = sketch22
hole21.ThreadType = "None"
hole21.Diameter = 6
hole21.DepthType = "ThroughAll"

# Sketch on XZ plane
sketch23 = doc.addObject("Sketcher::SketchObject", "Sketch022")
body.addObject(sketch23)
sketch23.AttachmentSupport = (doc.XZ_Plane, [""])
sketch23.MapMode = "FlatFace"
sketch23.addGeometry(Part.Circle(Vector(51.8, -131, 0), Vector(0, 0, 1), 3), False)
sketch23.addConstraint([
    Sketcher.Constraint("Diameter", 0, Q("6 mm")),
    Sketcher.Constraint("DistanceY", 0, 3, -1, 1, Q("130.999098 mm")),
    Sketcher.Constraint("DistanceX", -1, 1, 0, 3, Q("51.772881 mm")),
])
doc.recompute()
hole22 = doc.addObject("PartDesign::Hole", "Hole021")
body.addObject(hole22)
hole22.Profile = sketch23
hole22.ThreadType = "None"
hole22.Diameter = 6
hole22.DepthType = "ThroughAll"

# Sketch on XZ plane
sketch24 = doc.addObject("Sketcher::SketchObject", "Sketch023")
body.addObject(sketch24)
sketch24.AttachmentSupport = (doc.XZ_Plane, [""])
sketch24.MapMode = "FlatFace"
sketch24.AttachmentOffset = App.Placement(Vector(0, 0, 96.5), App.Rotation())
sketch24.addGeometry(Part.Circle(Vector(18.7, -111.9, 0), Vector(0, 0, 1), 3), False)
sketch24.addConstraint([
    Sketcher.Constraint("Diameter", 0, Q("6 mm")),
    Sketcher.Constraint("DistanceY", 0, 3, -1, 1, Q("111.869808 mm")),
    Sketcher.Constraint("DistanceX", -1, 1, 0, 3, Q("18.689374 mm")),
])
doc.recompute()
hole23 = doc.addObject("PartDesign::Hole", "Hole022")
body.addObject(hole23)
hole23.Profile = sketch24
hole23.ThreadType = "None"
hole23.Diameter = 6
hole23.DepthType = "ThroughAll"

# Sketch on XZ plane
sketch25 = doc.addObject("Sketcher::SketchObject", "Sketch024")
body.addObject(sketch25)
sketch25.AttachmentSupport = (doc.XZ_Plane, [""])
sketch25.MapMode = "FlatFace"
sketch25.addGeometry(Part.Circle(Vector(18.7, -111.9, 0), Vector(0, 0, 1), 3), False)
sketch25.addConstraint([
    Sketcher.Constraint("Diameter", 0, Q("6 mm")),
    Sketcher.Constraint("DistanceY", 0, 3, -1, 1, Q("111.869808 mm")),
    Sketcher.Constraint("DistanceX", -1, 1, 0, 3, Q("18.689374 mm")),
])
doc.recompute()
hole24 = doc.addObject("PartDesign::Hole", "Hole023")
body.addObject(hole24)
hole24.Profile = sketch25
hole24.ThreadType = "None"
hole24.Diameter = 6
hole24.DepthType = "ThroughAll"

# Sketch on XZ plane
sketch26 = doc.addObject("Sketcher::SketchObject", "Sketch025")
body.addObject(sketch26)
sketch26.AttachmentSupport = (doc.XZ_Plane, [""])
sketch26.MapMode = "FlatFace"
sketch26.AttachmentOffset = App.Placement(Vector(0, 0, 96.5), App.Rotation())
sketch26.addGeometry(Part.Circle(Vector(35.2, -83.3, 0), Vector(0, 0, 1), 3), False)
sketch26.addConstraint([
    Sketcher.Constraint("Diameter", 0, Q("6 mm")),
    Sketcher.Constraint("DistanceX", -1, 1, 0, 3, Q("35.166341 mm")),
    Sketcher.Constraint("DistanceY", 0, 3, -1, 1, Q("83.285306 mm")),
])
doc.recompute()
hole25 = doc.addObject("PartDesign::Hole", "Hole024")
body.addObject(hole25)
hole25.Profile = sketch26
hole25.ThreadType = "None"
hole25.Diameter = 6
hole25.DepthType = "ThroughAll"

# Sketch on XZ plane
sketch27 = doc.addObject("Sketcher::SketchObject", "Sketch026")
body.addObject(sketch27)
sketch27.AttachmentSupport = (doc.XZ_Plane, [""])
sketch27.MapMode = "FlatFace"
sketch27.addGeometry(Part.Circle(Vector(35.2, -83.3, 0), Vector(0, 0, 1), 3), False)
sketch27.addConstraint([
    Sketcher.Constraint("Diameter", 0, Q("6 mm")),
    Sketcher.Constraint("DistanceX", -1, 1, 0, 3, Q("35.166341 mm")),
    Sketcher.Constraint("DistanceY", 0, 3, -1, 1, Q("83.285306 mm")),
])
doc.recompute()
hole26 = doc.addObject("PartDesign::Hole", "Hole025")
body.addObject(hole26)
hole26.Profile = sketch27
hole26.ThreadType = "None"
hole26.Diameter = 6
hole26.DepthType = "ThroughAll"

# Sketch on XZ plane
sketch28 = doc.addObject("Sketcher::SketchObject", "Sketch027")
body.addObject(sketch28)
sketch28.AttachmentSupport = (doc.XZ_Plane, [""])
sketch28.MapMode = "FlatFace"
sketch28.AttachmentOffset = App.Placement(Vector(0, 0, 96.5), App.Rotation())
sketch28.addGeometry(Part.Circle(Vector(-9.8, 29, 0), Vector(0, 0, 1), 3), False)
sketch28.addConstraint([
    Sketcher.Constraint("Diameter", 0, Q("6 mm")),
    Sketcher.Constraint("DistanceX", 0, 3, -1, 1, Q("9.800703 mm")),
    Sketcher.Constraint("DistanceY", -1, 1, 0, 3, Q("29.019397 mm")),
])
doc.recompute()
hole27 = doc.addObject("PartDesign::Hole", "Hole026")
body.addObject(hole27)
hole27.Profile = sketch28
hole27.ThreadType = "None"
hole27.Diameter = 6
hole27.DepthType = "ThroughAll"

# Sketch on XZ plane
sketch29 = doc.addObject("Sketcher::SketchObject", "Sketch028")
body.addObject(sketch29)
sketch29.AttachmentSupport = (doc.XZ_Plane, [""])
sketch29.MapMode = "FlatFace"
sketch29.addGeometry(Part.Circle(Vector(-9.8, 29, 0), Vector(0, 0, 1), 3), False)
sketch29.addConstraint([
    Sketcher.Constraint("Diameter", 0, Q("6 mm")),
    Sketcher.Constraint("DistanceX", 0, 3, -1, 1, Q("9.800703 mm")),
    Sketcher.Constraint("DistanceY", -1, 1, 0, 3, Q("29.019397 mm")),
])
doc.recompute()
hole28 = doc.addObject("PartDesign::Hole", "Hole027")
body.addObject(hole28)
hole28.Profile = sketch29
hole28.ThreadType = "None"
hole28.Diameter = 6
hole28.DepthType = "ThroughAll"

doc.recompute()
